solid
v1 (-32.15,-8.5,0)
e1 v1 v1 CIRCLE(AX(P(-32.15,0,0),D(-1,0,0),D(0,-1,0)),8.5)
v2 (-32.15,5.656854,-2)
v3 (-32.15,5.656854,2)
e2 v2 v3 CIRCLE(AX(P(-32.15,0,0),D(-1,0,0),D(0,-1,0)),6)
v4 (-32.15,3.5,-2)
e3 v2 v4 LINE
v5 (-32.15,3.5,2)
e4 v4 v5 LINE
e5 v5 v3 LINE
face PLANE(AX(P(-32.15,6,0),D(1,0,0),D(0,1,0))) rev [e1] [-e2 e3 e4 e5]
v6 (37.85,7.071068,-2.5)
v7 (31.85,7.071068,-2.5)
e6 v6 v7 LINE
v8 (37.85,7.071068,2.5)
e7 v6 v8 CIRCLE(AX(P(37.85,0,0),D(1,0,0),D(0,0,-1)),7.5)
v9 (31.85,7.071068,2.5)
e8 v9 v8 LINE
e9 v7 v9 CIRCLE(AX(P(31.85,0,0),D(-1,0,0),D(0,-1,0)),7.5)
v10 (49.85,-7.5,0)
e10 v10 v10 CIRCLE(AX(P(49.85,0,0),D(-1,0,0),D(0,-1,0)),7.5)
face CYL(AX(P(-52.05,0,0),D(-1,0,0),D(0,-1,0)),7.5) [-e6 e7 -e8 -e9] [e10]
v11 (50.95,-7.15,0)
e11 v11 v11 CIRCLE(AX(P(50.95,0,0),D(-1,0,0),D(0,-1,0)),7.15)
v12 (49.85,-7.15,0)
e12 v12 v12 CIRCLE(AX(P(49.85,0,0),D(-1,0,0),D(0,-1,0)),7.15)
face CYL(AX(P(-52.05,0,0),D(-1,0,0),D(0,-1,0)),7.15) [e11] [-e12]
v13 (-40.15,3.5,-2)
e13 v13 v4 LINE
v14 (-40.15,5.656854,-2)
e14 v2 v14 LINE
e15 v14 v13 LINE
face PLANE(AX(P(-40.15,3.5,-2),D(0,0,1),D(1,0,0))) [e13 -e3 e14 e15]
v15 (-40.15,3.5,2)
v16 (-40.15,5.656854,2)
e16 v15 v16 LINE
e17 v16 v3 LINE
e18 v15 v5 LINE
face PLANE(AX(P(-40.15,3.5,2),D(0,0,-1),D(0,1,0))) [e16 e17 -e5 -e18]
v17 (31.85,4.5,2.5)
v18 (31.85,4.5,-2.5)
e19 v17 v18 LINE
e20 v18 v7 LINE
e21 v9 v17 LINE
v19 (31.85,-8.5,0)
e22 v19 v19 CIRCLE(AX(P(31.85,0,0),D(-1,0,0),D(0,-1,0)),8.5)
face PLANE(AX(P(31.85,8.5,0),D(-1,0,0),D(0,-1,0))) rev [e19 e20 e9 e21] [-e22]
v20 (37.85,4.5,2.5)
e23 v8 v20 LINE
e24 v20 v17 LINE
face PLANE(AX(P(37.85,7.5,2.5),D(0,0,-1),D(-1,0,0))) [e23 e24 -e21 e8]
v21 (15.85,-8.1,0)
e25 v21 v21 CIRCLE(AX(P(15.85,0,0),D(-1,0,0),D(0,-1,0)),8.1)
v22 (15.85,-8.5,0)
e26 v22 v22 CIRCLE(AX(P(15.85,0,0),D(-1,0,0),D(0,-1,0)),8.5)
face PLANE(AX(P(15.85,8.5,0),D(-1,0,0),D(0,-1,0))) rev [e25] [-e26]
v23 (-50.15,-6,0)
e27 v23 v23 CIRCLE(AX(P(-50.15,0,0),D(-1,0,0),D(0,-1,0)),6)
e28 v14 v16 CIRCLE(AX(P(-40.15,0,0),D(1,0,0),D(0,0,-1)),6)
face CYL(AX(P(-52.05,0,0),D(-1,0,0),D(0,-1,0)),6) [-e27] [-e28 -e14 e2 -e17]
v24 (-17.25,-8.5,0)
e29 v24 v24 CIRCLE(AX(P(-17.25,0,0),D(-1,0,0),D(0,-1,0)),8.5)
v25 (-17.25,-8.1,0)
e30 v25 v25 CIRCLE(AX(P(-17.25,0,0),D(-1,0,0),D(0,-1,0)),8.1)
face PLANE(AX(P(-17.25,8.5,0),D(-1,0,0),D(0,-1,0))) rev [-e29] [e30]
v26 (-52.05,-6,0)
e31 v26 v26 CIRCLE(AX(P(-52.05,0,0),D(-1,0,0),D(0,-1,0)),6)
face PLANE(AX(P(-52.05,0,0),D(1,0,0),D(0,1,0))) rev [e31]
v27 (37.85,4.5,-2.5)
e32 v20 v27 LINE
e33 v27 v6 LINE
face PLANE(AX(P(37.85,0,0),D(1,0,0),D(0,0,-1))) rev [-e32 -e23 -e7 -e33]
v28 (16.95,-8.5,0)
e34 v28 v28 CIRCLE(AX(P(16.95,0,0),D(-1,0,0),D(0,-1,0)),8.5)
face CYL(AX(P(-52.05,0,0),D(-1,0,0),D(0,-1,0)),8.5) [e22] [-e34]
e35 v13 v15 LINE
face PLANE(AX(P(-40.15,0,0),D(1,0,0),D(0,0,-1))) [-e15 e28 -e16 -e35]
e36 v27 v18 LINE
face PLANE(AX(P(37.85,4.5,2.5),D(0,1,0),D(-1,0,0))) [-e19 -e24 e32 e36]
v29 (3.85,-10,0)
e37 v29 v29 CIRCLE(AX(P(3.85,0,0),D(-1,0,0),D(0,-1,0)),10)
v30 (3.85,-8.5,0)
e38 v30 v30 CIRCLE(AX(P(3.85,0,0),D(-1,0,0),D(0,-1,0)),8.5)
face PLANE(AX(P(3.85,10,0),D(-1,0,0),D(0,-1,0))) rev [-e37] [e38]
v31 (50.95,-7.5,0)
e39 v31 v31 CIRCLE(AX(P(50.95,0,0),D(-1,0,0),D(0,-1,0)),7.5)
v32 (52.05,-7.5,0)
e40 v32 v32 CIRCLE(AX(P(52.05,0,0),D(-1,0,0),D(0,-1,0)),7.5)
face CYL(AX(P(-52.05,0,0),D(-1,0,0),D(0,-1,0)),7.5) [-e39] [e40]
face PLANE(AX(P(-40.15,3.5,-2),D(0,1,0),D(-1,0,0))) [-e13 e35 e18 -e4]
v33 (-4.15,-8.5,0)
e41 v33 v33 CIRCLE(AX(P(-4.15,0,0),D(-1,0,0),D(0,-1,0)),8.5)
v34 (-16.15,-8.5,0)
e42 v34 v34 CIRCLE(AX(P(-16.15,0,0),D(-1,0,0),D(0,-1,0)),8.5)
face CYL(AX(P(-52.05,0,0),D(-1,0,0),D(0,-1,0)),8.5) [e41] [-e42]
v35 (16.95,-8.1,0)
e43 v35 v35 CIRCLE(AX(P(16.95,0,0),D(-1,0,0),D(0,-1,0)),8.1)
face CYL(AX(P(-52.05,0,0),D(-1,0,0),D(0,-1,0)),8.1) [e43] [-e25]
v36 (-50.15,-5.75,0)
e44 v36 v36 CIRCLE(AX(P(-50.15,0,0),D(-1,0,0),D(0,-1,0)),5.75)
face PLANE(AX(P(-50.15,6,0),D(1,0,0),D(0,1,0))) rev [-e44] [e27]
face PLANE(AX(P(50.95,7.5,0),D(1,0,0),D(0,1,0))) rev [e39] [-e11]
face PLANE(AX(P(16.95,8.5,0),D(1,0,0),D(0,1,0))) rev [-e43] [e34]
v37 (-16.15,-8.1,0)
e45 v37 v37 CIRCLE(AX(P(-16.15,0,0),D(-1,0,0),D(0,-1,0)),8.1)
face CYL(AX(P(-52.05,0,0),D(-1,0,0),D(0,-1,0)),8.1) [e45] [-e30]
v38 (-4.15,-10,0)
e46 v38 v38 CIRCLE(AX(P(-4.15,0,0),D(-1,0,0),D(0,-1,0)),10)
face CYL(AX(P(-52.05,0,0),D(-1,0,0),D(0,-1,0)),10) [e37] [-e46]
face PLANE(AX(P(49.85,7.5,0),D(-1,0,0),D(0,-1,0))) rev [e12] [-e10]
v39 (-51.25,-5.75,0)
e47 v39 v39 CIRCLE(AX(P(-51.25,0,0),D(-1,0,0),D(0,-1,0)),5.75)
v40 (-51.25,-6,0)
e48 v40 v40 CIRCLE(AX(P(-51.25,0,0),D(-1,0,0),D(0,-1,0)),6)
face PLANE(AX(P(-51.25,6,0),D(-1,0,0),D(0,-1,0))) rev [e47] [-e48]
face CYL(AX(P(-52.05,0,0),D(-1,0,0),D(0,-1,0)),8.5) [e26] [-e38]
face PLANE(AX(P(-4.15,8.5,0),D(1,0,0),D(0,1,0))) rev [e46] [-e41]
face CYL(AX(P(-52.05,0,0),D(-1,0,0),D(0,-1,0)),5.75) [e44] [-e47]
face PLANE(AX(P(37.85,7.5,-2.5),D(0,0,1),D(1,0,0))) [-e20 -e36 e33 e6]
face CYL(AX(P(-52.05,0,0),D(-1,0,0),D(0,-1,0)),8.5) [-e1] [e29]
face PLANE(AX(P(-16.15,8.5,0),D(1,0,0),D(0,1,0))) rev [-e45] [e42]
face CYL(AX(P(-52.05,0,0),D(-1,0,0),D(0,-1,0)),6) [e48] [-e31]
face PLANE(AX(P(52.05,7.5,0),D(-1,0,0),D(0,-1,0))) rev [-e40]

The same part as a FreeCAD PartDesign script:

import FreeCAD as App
import Part
import Sketcher

doc = App.newDocument("Part")
body = doc.addObject("PartDesign::Body", "Body")

# Sketch on XY plane
sketch1 = body.newObject("Sketcher::SketchObject", "Sketch")
sketch1.AttachmentSupport = (doc.getObject("XY_Plane"), [""])
sketch1.MapMode = "FlatFace"
sketch1.addGeometry([
    Part.LineSegment(App.Vector(-52.05, 0, 0), App.Vector(52.05, 0, 0)),  # 0
    Part.LineSegment(App.Vector(52.05, 0, 0), App.Vector(52.05, 7.5, 0)),  # 1
    Part.LineSegment(App.Vector(52.05, 7.5, 0), App.Vector(50.95, 7.5, 0)),  # 2
    Part.LineSegment(App.Vector(50.95, 7.5, 0), App.Vector(50.95, 7.15, 0)),  # 3
    Part.LineSegment(App.Vector(50.95, 7.15, 0), App.Vector(49.85, 7.15, 0)),  # 4
    Part.LineSegment(App.Vector(49.85, 7.15, 0), App.Vector(49.85, 7.5, 0)),  # 5
    Part.LineSegment(App.Vector(49.85, 7.5, 0), App.Vector(31.85, 7.5, 0)),  # 6
    Part.LineSegment(App.Vector(31.85, 7.5, 0), App.Vector(31.85, 8.5, 0)),  # 7
    Part.LineSegment(App.Vector(31.85, 8.5, 0), App.Vector(16.95, 8.5, 0)),  # 8
    Part.LineSegment(App.Vector(16.95, 8.5, 0), App.Vector(16.95, 8.1, 0)),  # 9
    Part.LineSegment(App.Vector(16.95, 8.1, 0), App.Vector(15.85, 8.1, 0)),  # 10
    Part.LineSegment(App.Vector(15.85, 8.1, 0), App.Vector(15.85, 8.5, 0)),  # 11
    Part.LineSegment(App.Vector(15.85, 8.5, 0), App.Vector(3.85, 8.5, 0)),  # 12
    Part.LineSegment(App.Vector(3.85, 8.5, 0), App.Vector(3.85, 10, 0)),  # 13
    Part.LineSegment(App.Vector(3.85, 10, 0), App.Vector(-4.15, 10, 0)),  # 14
    Part.LineSegment(App.Vector(-4.15, 10, 0), App.Vector(-4.15, 8.5, 0)),  # 15
    Part.LineSegment(App.Vector(-4.15, 8.5, 0), App.Vector(-16.15, 8.5, 0)),  # 16
    Part.LineSegment(App.Vector(-16.15, 8.5, 0), App.Vector(-16.15, 8.1, 0)),  # 17
    Part.LineSegment(App.Vector(-16.15, 8.1, 0), App.Vector(-17.25, 8.1, 0)),  # 18
    Part.LineSegment(App.Vector(-17.25, 8.1, 0), App.Vector(-17.25, 8.5, 0)),  # 19
    Part.LineSegment(App.Vector(-17.25, 8.5, 0), App.Vector(-32.15, 8.5, 0)),  # 20
    Part.LineSegment(App.Vector(-32.15, 8.5, 0), App.Vector(-32.15, 6, 0)),  # 21
    Part.LineSegment(App.Vector(-32.15, 6, 0), App.Vector(-50.15, 6, 0)),  # 22
    Part.LineSegment(App.Vector(-50.15, 6, 0), App.Vector(-50.15, 5.75, 0)),  # 23
    Part.LineSegment(App.Vector(-50.15, 5.75, 0), App.Vector(-51.25, 5.75, 0)),  # 24
    Part.LineSegment(App.Vector(-51.25, 5.75, 0), App.Vector(-51.25, 6, 0)),  # 25
    Part.LineSegment(App.Vector(-51.25, 6, 0), App.Vector(-52.05, 6, 0)),  # 26
    Part.LineSegment(App.Vector(-52.05, 6, 0), App.Vector(-52.05, 0, 0)),  # 27
], False)
sketch1.addConstraint([
    Sketcher.Constraint("Coincident", 0, 2, 1, 1),
    Sketcher.Constraint("Coincident", 1, 2, 2, 1),
    Sketcher.Constraint("Coincident", 2, 2, 3, 1),
    Sketcher.Constraint("Coincident", 3, 2, 4, 1),
    Sketcher.Constraint("Coincident", 4, 2, 5, 1),
    Sketcher.Constraint("Coincident", 5, 2, 6, 1),
    Sketcher.Constraint("Coincident", 6, 2, 7, 1),
    Sketcher.Constraint("Coincident", 7, 2, 8, 1),
    Sketcher.Constraint("Coincident", 8, 2, 9, 1),
    Sketcher.Constraint("Coincident", 9, 2, 10, 1),
    Sketcher.Constraint("Coincident", 10, 2, 11, 1),
    Sketcher.Constraint("Coincident", 11, 2, 12, 1),
    Sketcher.Constraint("Coincident", 12, 2, 13, 1),
    Sketcher.Constraint("Coincident", 13, 2, 14, 1),
    Sketcher.Constraint("Coincident", 14, 2, 15, 1),
    Sketcher.Constraint("Coincident", 15, 2, 16, 1),
    Sketcher.Constraint("Coincident", 16, 2, 17, 1),
    Sketcher.Constraint("Coincident", 17, 2, 18, 1),
    Sketcher.Constraint("Coincident", 18, 2, 19, 1),
    Sketcher.Constraint("Coincident", 19, 2, 20, 1),
    Sketcher.Constraint("Coincident", 20, 2, 21, 1),
    Sketcher.Constraint("Coincident", 21, 2, 22, 1),
    Sketcher.Constraint("Coincident", 22, 2, 23, 1),
    Sketcher.Constraint("Coincident", 23, 2, 24, 1),
    Sketcher.Constraint("Coincident", 24, 2, 25, 1),
    Sketcher.Constraint("Coincident", 25, 2, 26, 1),
    Sketcher.Constraint("Coincident", 26, 2, 27, 1),
    Sketcher.Constraint("Coincident", 27, 2, 0, 1),
    Sketcher.Constraint("Horizontal", 0),
    Sketcher.Constraint("Vertical", 1),
    Sketcher.Constraint("Horizontal", 2),
    Sketcher.Constraint("Vertical", 3),
    Sketcher.Constraint("Horizontal", 4),
    Sketcher.Constraint("Vertical", 5),
    Sketcher.Constraint("Horizontal", 6),
    Sketcher.Constraint("Vertical", 7),
    Sketcher.Constraint("Horizontal", 8),
    Sketcher.Constraint("Vertical", 9),
    Sketcher.Constraint("Horizontal", 10),
    Sketcher.Constraint("Vertical", 11),
    Sketcher.Constraint("Horizontal", 12),
    Sketcher.Constraint("Vertical", 13),
    Sketcher.Constraint("Horizontal", 14),
    Sketcher.Constraint("Vertical", 15),
    Sketcher.Constraint("Horizontal", 16),
    Sketcher.Constraint("Vertical", 17),
    Sketcher.Constraint("Horizontal", 18),
    Sketcher.Constraint("Vertical", 19),
    Sketcher.Constraint("Horizontal", 20),
    Sketcher.Constraint("Vertical", 21),
    Sketcher.Constraint("Horizontal", 22),
    Sketcher.Constraint("Vertical", 23),
    Sketcher.Constraint("Horizontal", 24),
    Sketcher.Constraint("Vertical", 25),
    Sketcher.Constraint("Horizontal", 26),
    Sketcher.Constraint("Vertical", 27),
    Sketcher.Constraint("Symmetric", 0, 2, 27, 2, -1, 1),
    Sketcher.Constraint("Horizontal", 2, 2, 5, 2),
    Sketcher.Constraint("Horizontal", 8, 2, 11, 2),
    Sketcher.Constraint("Horizontal", 12, 2, 15, 2),
    Sketcher.Constraint("Horizontal", 10, 2, 17, 2),
    Sketcher.Constraint("Horizontal", 16, 2, 19, 2),
    Sketcher.Constraint("Horizontal", 22, 2, 25, 2),
    Sketcher.Constraint("Equal", 2, 4),
    Sketcher.Constraint("Equal", 4, 10),
    Sketcher.Constraint("Equal", 12, 16),
    Sketcher.Constraint("Equal", 10, 18),
    Sketcher.Constraint("Equal", 8, 20),
    Sketcher.Constraint("Equal", 6, 22),
    Sketcher.Constraint("Equal", 18, 24),
    Sketcher.Constraint("DistanceX", 6, 2, 6, 1, 18.0),
    Sketcher.Constraint("DistanceX", 12, 2, 12, 1, 12.0),
    Sketcher.Constraint("DistanceX", 14, 2, 14, 1, 8.0),
    Sketcher.Constraint("DistanceY", 7, 1, 7, 2, 1.0),
    Sketcher.Constraint("DistanceY", 27, 2, 27, 1, 6.0),
    Sketcher.Constraint("DistanceX", 0, 1, 0, 2, 104.1),
    Sketcher.Constraint("DistanceX", 2, 2, 2, 1, 1.1),
    Sketcher.Constraint("DistanceX", 8, 2, 8, 1, 14.9),
    Sketcher.Constraint("DistanceY", 1, 1, 1, 2, 7.5),
    Sketcher.Constraint("DistanceY", 9, 2, 9, 1, 0.4),
    Sketcher.Constraint("DistanceY", 13, 1, 13, 2, 1.5),
    Sketcher.Constraint("DistanceY", 3, 2, 3, 1, 0.35),
    Sketcher.Constraint("DistanceY", 23, 2, 23, 1, 0.25),
])
revolution = body.newObject("PartDesign::Revolution", "Revolution")
revolution.Profile = sketch1
revolution.ReferenceAxis = (sketch1, ["H_Axis"])
revolution.Angle = 360

# Sketch on YZ plane
sketch2 = body.newObject("Sketcher::SketchObject", "Sketch001")
sketch2.AttachmentSupport = (doc.getObject("YZ_Plane"), [""])
sketch2.MapMode = "FlatFace"
sketch2.AttachmentOffset = App.Placement(App.Vector(0, 0, -32.15), App.Rotation())
sketch2.addGeometry([
    Part.LineSegment(App.Vector(6, -2, 0), App.Vector(3.5, -2, 0)),
    Part.LineSegment(App.Vector(3.5, -2, 0), App.Vector(3.5, 2, 0)),
    Part.LineSegment(App.Vector(3.5, 2, 0), App.Vector(6, 2, 0)),
    Part.LineSegment(App.Vector(6, 2, 0), App.Vector(6, -2, 0)),
], False)
sketch2.addConstraint([
    Sketcher.Constraint("Coincident", 0, 2, 1, 1),
    Sketcher.Constraint("Coincident", 1, 2, 2, 1),
    Sketcher.Constraint("Coincident", 2, 2, 3, 1),
    Sketcher.Constraint("Coincident", 3, 2, 0, 1),
    Sketcher.Constraint("Horizontal", 0),
    Sketcher.Constraint("Vertical", 1),
    Sketcher.Constraint("Horizontal", 2),
    Sketcher.Constraint("Vertical", 3),
    Sketcher.Constraint("DistanceY", 1, 1, 1, 2, 4.0),
    Sketcher.Constraint("DistanceX", 0, 2, 0, 1, 2.5),
    Sketcher.Constraint("DistanceY", 0, 2, -1, 1, 2.0),
    Sketcher.Constraint("DistanceX", -1, 1, 2, 2, 6.0),
])
pocket1 = body.newObject("PartDesign::Pocket", "Pocket")
pocket1.Profile = sketch2
pocket1.Length = 8

# Sketch on YZ plane
sketch3 = body.newObject("Sketcher::SketchObject", "Sketch002")
sketch3.AttachmentSupport = (doc.getObject("YZ_Plane"), [""])
sketch3.MapMode = "FlatFace"
sketch3.AttachmentOffset = App.Placement(App.Vector(0, 0, 31.85), App.Rotation())
sketch3.addGeometry([
    Part.LineSegment(App.Vector(7.5, 2.5, 0), App.Vector(4.5, 2.5, 0)),
    Part.LineSegment(App.Vector(4.5, 2.5, 0), App.Vector(4.5, -2.5, 0)),
    Part.LineSegment(App.Vector(4.5, -2.5, 0), App.Vector(7.5, -2.5, 0)),
    Part.LineSegment(App.Vector(7.5, -2.5, 0), App.Vector(7.5, 2.5, 0)),
], False)
sketch3.addConstraint([
    Sketcher.Constraint("Coincident", 0, 2, 1, 1),
    Sketcher.Constraint("Coincident", 1, 2, 2, 1),
    Sketcher.Constraint("Coincident", 2, 2, 3, 1),
    Sketcher.Constraint("Coincident", 3, 2, 0, 1),
    Sketcher.Constraint("Horizontal", 0),
    Sketcher.Constraint("Vertical", 1),
    Sketcher.Constraint("Horizontal", 2),
    Sketcher.Constraint("Vertical", 3),
    Sketcher.Constraint("DistanceX", 0, 2, 0, 1, 3.0),
    Sketcher.Constraint("DistanceY", 1, 2, 1, 1, 5.0),
    Sketcher.Constraint("DistanceX", -1, 1, 0, 2, 4.5),
    Sketcher.Constraint("DistanceY", -1, 1, 0, 2, 2.5),
])
pocket2 = body.newObject("PartDesign::Pocket", "Pocket001")
pocket2.Profile = sketch3
pocket2.Length = 6
pocket2.Reversed = True

doc.recompute()
